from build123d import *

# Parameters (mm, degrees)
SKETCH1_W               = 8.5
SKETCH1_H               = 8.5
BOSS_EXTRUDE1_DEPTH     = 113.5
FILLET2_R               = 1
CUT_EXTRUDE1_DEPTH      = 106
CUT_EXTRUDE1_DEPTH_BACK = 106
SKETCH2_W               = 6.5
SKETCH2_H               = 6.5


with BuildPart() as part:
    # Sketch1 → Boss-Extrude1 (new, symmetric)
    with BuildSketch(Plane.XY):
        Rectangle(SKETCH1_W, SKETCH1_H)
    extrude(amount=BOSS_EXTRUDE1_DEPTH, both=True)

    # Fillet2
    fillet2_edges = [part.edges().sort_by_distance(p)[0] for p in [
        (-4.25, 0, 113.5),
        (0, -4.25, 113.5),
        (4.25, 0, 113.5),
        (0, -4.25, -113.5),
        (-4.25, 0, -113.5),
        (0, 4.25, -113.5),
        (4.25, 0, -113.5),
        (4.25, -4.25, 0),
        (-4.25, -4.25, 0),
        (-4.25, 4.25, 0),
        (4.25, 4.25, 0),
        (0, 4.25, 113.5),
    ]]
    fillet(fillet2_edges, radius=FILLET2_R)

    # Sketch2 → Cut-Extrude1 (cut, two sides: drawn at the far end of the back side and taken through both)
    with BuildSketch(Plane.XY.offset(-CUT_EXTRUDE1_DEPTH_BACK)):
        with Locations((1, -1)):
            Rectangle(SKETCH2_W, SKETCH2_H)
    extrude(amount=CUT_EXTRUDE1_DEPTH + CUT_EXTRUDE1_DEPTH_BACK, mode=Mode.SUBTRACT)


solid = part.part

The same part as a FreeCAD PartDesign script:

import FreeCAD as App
import Part
import Sketcher
Q = App.Units.Quantity


def add_polygon(sketch, points):
    """Adds a closed chain of lines whose ends are joined by coincident constraints."""
    first, n = sketch.GeometryCount, len(points)
    for a, b in zip(points, points[1:] + points[:1]):
        sketch.addGeometry(Part.LineSegment(App.Vector(*a, 0), App.Vector(*b, 0)), False)
    for i in range(n):
        sketch.addConstraint(Sketcher.Constraint("Coincident", first + i, 2, first + (i + 1) % n, 1))

doc = App.newDocument("Part")
body = doc.addObject("PartDesign::Body", "Body")

# Sketch on XY plane
sketch1 = doc.addObject("Sketcher::SketchObject", "Sketch")
body.addObject(sketch1)
sketch1.AttachmentSupport = (doc.XY_Plane, [""])
sketch1.MapMode = "FlatFace"
add_polygon(sketch1, [(-4, 4), (-4, -4), (4, -4), (4, 4)])  # lines 0-3
sketch1.addConstraint(Sketcher.Constraint("Vertical", 0))
sketch1.addConstraint(Sketcher.Constraint("Horizontal", 1))
sketch1.addConstraint(Sketcher.Constraint("Vertical", 2))
sketch1.addConstraint(Sketcher.Constraint("Horizontal", 3))
sketch1.addConstraint(Sketcher.Constraint("Symmetric", 0, 2, 2, 2, -1, 1))
sketch1.addConstraint(Sketcher.Constraint("Equal", 3, 0))
sketch1.addConstraint(Sketcher.Constraint("DistanceX", 1, 1, 1, 2, Q("8.5 mm")))
pad1 = doc.addObject("PartDesign::Pad", "Pad")
body.addObject(pad1)
pad1.Profile = sketch1
pad1.Length = 227
pad1.Midplane = True
doc.recompute()

fillet = doc.addObject("PartDesign::Fillet", "Fillet")
body.addObject(fillet)
fillet.Base = (pad1, ["Edge1"])
fillet.UseAllEdges = True
fillet.Radius = 1

# Sketch on XY plane
sketch2 = doc.addObject("Sketcher::SketchObject", "Sketch001")
body.addObject(sketch2)
sketch2.AttachmentSupport = (doc.XY_Plane, [""])
sketch2.MapMode = "FlatFace"
add_polygon(sketch2, [(-2, 2), (-2, -4), (4, -4), (4, 2)])  # lines 0-3
sketch2.addConstraint(Sketcher.Constraint("Vertical", 0))
sketch2.addConstraint(Sketcher.Constraint("Horizontal", 1))
sketch2.addConstraint(Sketcher.Constraint("Vertical", 2))
sketch2.addConstraint(Sketcher.Constraint("Horizontal", 3))
sketch2.addConstraint(Sketcher.Constraint("Equal", 3, 0))
sketch2.addConstraint(Sketcher.Constraint("DistanceX", 1, 1, 1, 2, Q("6.5 mm")))
sketch2.addConstraint(Sketcher.Constraint("DistanceX", 0, 2, -1, 1, Q("2.25 mm")))
sketch2.addConstraint(Sketcher.Constraint("DistanceY", 0, 2, -1, 1, Q("4.25 mm")))
pocket1 = doc.addObject("PartDesign::Pocket", "Pocket")
body.addObject(pocket1)
pocket1.Profile = sketch2
pocket1.Type = "TwoLengths"
pocket1.Length = 106
pocket1.Length2 = 106
pocket1.Reversed = True

doc.recompute()
